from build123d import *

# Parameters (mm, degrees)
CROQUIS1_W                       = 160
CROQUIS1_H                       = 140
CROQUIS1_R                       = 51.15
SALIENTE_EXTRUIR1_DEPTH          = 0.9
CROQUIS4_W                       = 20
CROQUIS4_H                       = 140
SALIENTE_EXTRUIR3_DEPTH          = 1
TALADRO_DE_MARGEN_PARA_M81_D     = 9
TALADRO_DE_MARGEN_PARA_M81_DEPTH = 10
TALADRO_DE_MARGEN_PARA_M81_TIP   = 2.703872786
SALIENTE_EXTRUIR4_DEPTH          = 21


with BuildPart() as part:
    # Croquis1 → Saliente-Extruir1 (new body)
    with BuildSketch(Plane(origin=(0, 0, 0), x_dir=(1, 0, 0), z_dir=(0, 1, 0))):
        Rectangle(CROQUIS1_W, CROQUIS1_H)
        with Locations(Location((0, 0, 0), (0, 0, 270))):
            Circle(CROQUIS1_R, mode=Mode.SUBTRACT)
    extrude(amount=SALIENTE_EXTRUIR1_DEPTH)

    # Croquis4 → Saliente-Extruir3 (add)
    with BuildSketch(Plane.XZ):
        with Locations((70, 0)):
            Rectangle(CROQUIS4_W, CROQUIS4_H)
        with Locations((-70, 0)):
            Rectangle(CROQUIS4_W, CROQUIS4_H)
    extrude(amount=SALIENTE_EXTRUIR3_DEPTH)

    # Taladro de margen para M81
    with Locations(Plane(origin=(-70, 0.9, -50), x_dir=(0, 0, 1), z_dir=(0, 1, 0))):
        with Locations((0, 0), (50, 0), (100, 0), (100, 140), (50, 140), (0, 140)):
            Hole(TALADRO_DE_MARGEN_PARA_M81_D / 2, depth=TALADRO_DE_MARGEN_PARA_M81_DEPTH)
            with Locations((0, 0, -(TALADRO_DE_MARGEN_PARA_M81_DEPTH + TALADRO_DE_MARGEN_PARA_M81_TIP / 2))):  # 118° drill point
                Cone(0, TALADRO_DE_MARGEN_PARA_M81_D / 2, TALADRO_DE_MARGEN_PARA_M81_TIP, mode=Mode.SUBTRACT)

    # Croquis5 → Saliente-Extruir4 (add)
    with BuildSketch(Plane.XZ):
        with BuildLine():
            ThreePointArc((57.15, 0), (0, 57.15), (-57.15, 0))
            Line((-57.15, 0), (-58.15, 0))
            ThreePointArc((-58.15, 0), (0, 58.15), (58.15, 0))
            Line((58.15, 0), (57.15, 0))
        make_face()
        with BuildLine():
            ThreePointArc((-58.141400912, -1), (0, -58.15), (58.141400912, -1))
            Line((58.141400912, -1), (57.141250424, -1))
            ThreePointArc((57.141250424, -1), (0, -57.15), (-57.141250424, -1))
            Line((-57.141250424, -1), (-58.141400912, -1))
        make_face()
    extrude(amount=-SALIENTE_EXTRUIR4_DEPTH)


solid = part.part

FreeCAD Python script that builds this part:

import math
import FreeCAD as App
import Part
import Sketcher

doc = App.newDocument("Part")
body = doc.addObject("PartDesign::Body", "Body")

sketch1 = doc.addObject("Sketcher::SketchObject", "Sketch")
body.addObject(sketch1)
sketch1.AttachmentSupport = (doc.XZ_Plane, [""])
sketch1.MapMode = "FlatFace"
sketch1.addGeometry([
    Part.LineSegment(App.Vector(-80, -70, 0), App.Vector(-80, 70, 0)),
    Part.LineSegment(App.Vector(-80, 70, 0), App.Vector(80, 70, 0)),
    Part.LineSegment(App.Vector(80, 70, 0), App.Vector(80, -70, 0)),
    Part.LineSegment(App.Vector(80, -70, 0), App.Vector(-80, -70, 0)),
    Part.Circle(App.Vector(0, 0, 0), App.Vector(0, 0, 1), 51),
], False)
sketch1.addConstraint([
    Sketcher.Constraint("Coincident", 0, 2, 1, 1),
    Sketcher.Constraint("Coincident", 1, 2, 2, 1),
    Sketcher.Constraint("Coincident", 2, 2, 3, 1),
    Sketcher.Constraint("Coincident", 3, 2, 0, 1),
    Sketcher.Constraint("Vertical", 0),
    Sketcher.Constraint("Horizontal", 1),
    Sketcher.Constraint("Vertical", 2),
    Sketcher.Constraint("Horizontal", 3),
    Sketcher.Constraint("Coincident", 4, 3, -1, 1),
    Sketcher.Constraint("Symmetric", 0, 2, 2, 2, -1, 1),
    Sketcher.Constraint("Diameter", 4, 102.3),
    Sketcher.Constraint("DistanceX", 1, 1, 1, 2, 160.0),
    Sketcher.Constraint("DistanceY", 0, 1, 0, 2, 140.0),
])
pad1 = doc.addObject("PartDesign::Pad", "Pad")
body.addObject(pad1)
pad1.Profile = sketch1
pad1.Length = 0.9
pad1.Reversed = True

sketch2 = doc.addObject("Sketcher::SketchObject", "Sketch001")
body.addObject(sketch2)
sketch2.AttachmentSupport = (doc.XZ_Plane, [""])
sketch2.MapMode = "FlatFace"
sketch2.addGeometry([
    Part.LineSegment(App.Vector(60, 70, 0), App.Vector(60, -70, 0)),
    Part.LineSegment(App.Vector(60, -70, 0), App.Vector(80, -70, 0)),
    Part.LineSegment(App.Vector(80, -70, 0), App.Vector(80, 70, 0)),
    Part.LineSegment(App.Vector(80, 70, 0), App.Vector(60, 70, 0)),
    Part.LineSegment(App.Vector(-80, 70, 0), App.Vector(-80, -70, 0)),
    Part.LineSegment(App.Vector(-80, -70, 0), App.Vector(-60, -70, 0)),
    Part.LineSegment(App.Vector(-60, -70, 0), App.Vector(-60, 70, 0)),
    Part.LineSegment(App.Vector(-60, 70, 0), App.Vector(-80, 70, 0)),
], False)
sketch2.addConstraint([
    Sketcher.Constraint("Coincident", 0, 2, 1, 1),
    Sketcher.Constraint("Coincident", 1, 2, 2, 1),
    Sketcher.Constraint("Coincident", 2, 2, 3, 1),
    Sketcher.Constraint("Coincident", 3, 2, 0, 1),
    Sketcher.Constraint("Coincident", 4, 2, 5, 1),
    Sketcher.Constraint("Coincident", 5, 2, 6, 1),
    Sketcher.Constraint("Coincident", 6, 2, 7, 1),
    Sketcher.Constraint("Coincident", 7, 2, 4, 1),
    Sketcher.Constraint("Vertical", 0),
    Sketcher.Constraint("Horizontal", 1),
    Sketcher.Constraint("Vertical", 2),
    Sketcher.Constraint("Horizontal", 3),
    Sketcher.Constraint("Vertical", 4),
    Sketcher.Constraint("Horizontal", 5),
    Sketcher.Constraint("Vertical", 6),
    Sketcher.Constraint("Horizontal", 7),
    Sketcher.Constraint("Symmetric", 2, 2, 4, 2, -1, 1),
    Sketcher.Constraint("Symmetric", 0, 2, 6, 2, -1, 1),
    Sketcher.Constraint("Horizontal", 1, 2, 4, 2),
    Sketcher.Constraint("DistanceX", 1, 1, 1, 2, 20.0),
    Sketcher.Constraint("DistanceY", 0, 2, 0, 1, 140.0),
    Sketcher.Constraint("DistanceX", -1, 1, 0, 2, 60.0),
])
pad2 = doc.addObject("PartDesign::Pad", "Pad001")
body.addObject(pad2)
pad2.Profile = sketch2
pad2.Length = 1

sketch3 = doc.addObject("Sketcher::SketchObject", "Sketch002")
body.addObject(sketch3)
sketch3.AttachmentSupport = (doc.XZ_Plane, [""])
sketch3.MapMode = "FlatFace"
sketch3.AttachmentOffset = App.Placement(App.Vector(0, 0, -0.9), App.Rotation())
sketch3.addGeometry([
    Part.Circle(App.Vector(-70, -50, 0), App.Vector(0, 0, 1), 4.5),
    Part.Circle(App.Vector(-70, 0, 0), App.Vector(0, 0, 1), 4.5),
    Part.Circle(App.Vector(-70, 50, 0), App.Vector(0, 0, 1), 4.5),
    Part.Circle(App.Vector(70, 50, 0), App.Vector(0, 0, 1), 4.5),
    Part.Circle(App.Vector(70, 0, 0), App.Vector(0, 0, 1), 4.5),
    Part.Circle(App.Vector(70, -50, 0), App.Vector(0, 0, 1), 4.5),
], False)
sketch3.addConstraint([
    Sketcher.Constraint("Equal", 0, 1),
    Sketcher.Constraint("Equal", 1, 2),
    Sketcher.Constraint("Equal", 2, 3),
    Sketcher.Constraint("Equal", 3, 4),
    Sketcher.Constraint("Equal", 4, 5),
    Sketcher.Constraint("Symmetric", 0, 3, 3, 3, -1, 1),
    Sketcher.Constraint("Symmetric", 1, 3, 4, 3, -1, 1),
    Sketcher.Constraint("Symmetric", 2, 3, 5, 3, -1, 1),
    Sketcher.Constraint("Symmetric", 2, 3, 3, 3, -2),
    Sketcher.Constraint("PointOnObject", 1, 3, -1),
    Sketcher.Constraint("Vertical", 0, 3, 1, 3),
    Sketcher.Constraint("Diameter", 0, 9.0),
    Sketcher.Constraint("DistanceX", 0, 3, -1, 1, 70.0),
    Sketcher.Constraint("DistanceY", 0, 3, -1, 1, 50.0),
])
doc.recompute()
hole = doc.addObject("PartDesign::Hole", "Hole")
body.addObject(hole)
hole.Profile = sketch3
hole.ThreadType = "None"
hole.Diameter = 9
hole.DepthType = "Dimension"
hole.Depth = 10
hole.DrillPoint = "Angled"
hole.DrillPointAngle = 118
hole.Reversed = True

sketch4 = doc.addObject("Sketcher::SketchObject", "Sketch003")
body.addObject(sketch4)
sketch4.AttachmentSupport = (doc.XZ_Plane, [""])
sketch4.MapMode = "FlatFace"
sketch4.addGeometry([
    Part.ArcOfCircle(Part.Circle(App.Vector(0, 0, 0), App.Vector(0, 0, 1), 57.1), math.radians(0), math.radians(180)),
    Part.LineSegment(App.Vector(57.1, 0, 0), App.Vector(58.1, 0, 0)),
    Part.ArcOfCircle(Part.Circle(App.Vector(0, 0, 0), App.Vector(0, 0, 1), 58.1), math.radians(0), math.radians(180)),
    Part.LineSegment(App.Vector(-58.1, 0, 0), App.Vector(-57.1, 0, 0)),
    Part.ArcOfCircle(Part.Circle(App.Vector(0, 0, 0), App.Vector(0, 0, 1), 58.1), math.radians(-179), math.radians(-1)),
    Part.LineSegment(App.Vector(58.1, -1, 0), App.Vector(57.1, -1, 0)),
    Part.ArcOfCircle(Part.Circle(App.Vector(0, 0, 0), App.Vector(0, 0, 1), 57.1), math.radians(-179), math.radians(-1)),
    Part.LineSegment(App.Vector(-57.1, -1, 0), App.Vector(-58.1, -1, 0)),
], False)
sketch4.addConstraint([
    Sketcher.Constraint("Coincident", 0, 1, 1, 1),
    Sketcher.Constraint("Coincident", 1, 2, 2, 1),
    Sketcher.Constraint("Coincident", 2, 2, 3, 1),
    Sketcher.Constraint("Coincident", 3, 2, 0, 2),
    Sketcher.Constraint("Coincident", 4, 2, 5, 1),
    Sketcher.Constraint("Coincident", 5, 2, 6, 2),
    Sketcher.Constraint("Coincident", 6, 1, 7, 1),
    Sketcher.Constraint("Coincident", 7, 2, 4, 1),
    Sketcher.Constraint("Horizontal", 1),
    Sketcher.Constraint("Horizontal", 3),
    Sketcher.Constraint("Horizontal", 5),
    Sketcher.Constraint("Horizontal", 7),
    Sketcher.Constraint("Coincident", 0, 3, -1, 1),
    Sketcher.Constraint("Coincident", 2, 3, -1, 1),
    Sketcher.Constraint("Coincident", 4, 3, -1, 1),
    Sketcher.Constraint("Coincident", 6, 3, -1, 1),
    Sketcher.Constraint("Equal", 2, 4),
    Sketcher.Constraint("Equal", 0, 6),
    Sketcher.Constraint("PointOnObject", 0, 1, -1),
    Sketcher.Constraint("PointOnObject", 2, 2, -1),
    Sketcher.Constraint("Horizontal", 5, 2, 6, 1),
    Sketcher.Constraint("DistanceX", 1, 1, 1, 2, 1.0),
    Sketcher.Constraint("Radius", 0, 57.15),
    Sketcher.Constraint("DistanceY", 4, 2, -1, 1, 1.0),
])
pad3 = doc.addObject("PartDesign::Pad", "Pad002")
body.addObject(pad3)
pad3.Profile = sketch4
pad3.Length = 21
pad3.Reversed = True

doc.recompute()
